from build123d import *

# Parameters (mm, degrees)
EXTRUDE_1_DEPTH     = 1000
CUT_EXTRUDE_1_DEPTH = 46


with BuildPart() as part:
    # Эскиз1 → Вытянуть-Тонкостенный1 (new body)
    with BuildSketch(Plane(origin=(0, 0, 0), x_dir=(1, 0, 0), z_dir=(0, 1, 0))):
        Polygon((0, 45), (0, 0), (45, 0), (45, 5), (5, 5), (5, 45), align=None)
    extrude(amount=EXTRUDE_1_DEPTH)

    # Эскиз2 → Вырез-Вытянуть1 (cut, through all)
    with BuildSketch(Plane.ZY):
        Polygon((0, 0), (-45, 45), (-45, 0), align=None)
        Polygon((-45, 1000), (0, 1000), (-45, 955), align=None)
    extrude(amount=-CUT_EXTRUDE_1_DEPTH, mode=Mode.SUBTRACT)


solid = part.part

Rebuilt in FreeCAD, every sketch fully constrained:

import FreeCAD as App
import Part
import Sketcher

V = App.Vector
Q = App.Units.Quantity

doc = App.newDocument("Part")
body = doc.addObject("PartDesign::Body", "Body")

# Sketch on XZ plane
sketch1 = body.newObject("Sketcher::SketchObject", "Sketch")
sketch1.AttachmentSupport = (doc.getObject("XZ_Plane"), [""])
sketch1.MapMode = "FlatFace"
sketch1.addGeometry([
    Part.LineSegment(V(0, -45, 0), V(0, 0, 0)),  # 0
    Part.LineSegment(V(0, 0, 0), V(45, 0, 0)),  # 1
    Part.LineSegment(V(45, 0, 0), V(45, -5, 0)),  # 2
    Part.LineSegment(V(45, -5, 0), V(5, -5, 0)),  # 3
    Part.LineSegment(V(5, -5, 0), V(5, -45, 0)),  # 4
    Part.LineSegment(V(5, -45, 0), V(0, -45, 0)),  # 5
], False)
sketch1.addConstraint([
    Sketcher.Constraint("Coincident", 0, 2, 1, 1),
    Sketcher.Constraint("Coincident", 1, 2, 2, 1),
    Sketcher.Constraint("Coincident", 2, 2, 3, 1),
    Sketcher.Constraint("Coincident", 3, 2, 4, 1),
    Sketcher.Constraint("Coincident", 4, 2, 5, 1),
    Sketcher.Constraint("Coincident", 5, 2, 0, 1),
    Sketcher.Constraint("Vertical", 0),
    Sketcher.Constraint("Horizontal", 1),
    Sketcher.Constraint("Vertical", 2),
    Sketcher.Constraint("Horizontal", 3),
    Sketcher.Constraint("Vertical", 4),
    Sketcher.Constraint("Horizontal", 5),
    Sketcher.Constraint("Coincident", 0, 2, -1, 1),
    Sketcher.Constraint("Equal", 1, 0),
    Sketcher.Constraint("Equal", 5, 2),
    Sketcher.Constraint("DistanceX", 1, 1, 1, 2, Q("45 mm")),
    Sketcher.Constraint("DistanceX", 3, 2, 3, 1, Q("40 mm")),
])
pad1 = body.newObject("PartDesign::Pad", "Pad")
pad1.Profile = sketch1
pad1.Length = 1000
pad1.Reversed = True

# Sketch on YZ plane
sketch2 = body.newObject("Sketcher::SketchObject", "Sketch001")
sketch2.AttachmentSupport = (doc.getObject("YZ_Plane"), [""])
sketch2.MapMode = "FlatFace"
sketch2.addGeometry([
    Part.LineSegment(V(0, 0, 0), V(45, -45, 0)),  # 0
    Part.LineSegment(V(45, -45, 0), V(0, -45, 0)),  # 1
    Part.LineSegment(V(0, -45, 0), V(0, 0, 0)),  # 2
    Part.LineSegment(V(1000, 0, 0), V(1000, -45, 0)),  # 3
    Part.LineSegment(V(1000, -45, 0), V(955, -45, 0)),  # 4
    Part.LineSegment(V(955, -45, 0), V(1000, 0, 0)),  # 5
], False)
sketch2.addConstraint([
    Sketcher.Constraint("Coincident", 0, 2, 1, 1),
    Sketcher.Constraint("Coincident", 1, 2, 2, 1),
    Sketcher.Constraint("Coincident", 2, 2, 0, 1),
    Sketcher.Constraint("Coincident", 3, 2, 4, 1),
    Sketcher.Constraint("Coincident", 4, 2, 5, 1),
    Sketcher.Constraint("Coincident", 5, 2, 3, 1),
    Sketcher.Constraint("Horizontal", 1),
    Sketcher.Constraint("Vertical", 2),
    Sketcher.Constraint("Vertical", 3),
    Sketcher.Constraint("Horizontal", 4),
    Sketcher.Constraint("Coincident", 2, 2, -1, 1),
    Sketcher.Constraint("PointOnObject", 5, 2, -1),
    Sketcher.Constraint("Perpendicular", 0, 5),
    Sketcher.Constraint("Horizontal", 1, 2, 3, 2),
    Sketcher.Constraint("Equal", 1, 4),
    Sketcher.Constraint("DistanceX", 1, 2, 1, 1, Q("45 mm")),
    Sketcher.Constraint("DistanceX", -1, 1, 3, 2, Q("1000 mm")),
])
pocket1 = body.newObject("PartDesign::Pocket", "Pocket")
pocket1.Profile = sketch2
pocket1.Type = "ThroughAll"
pocket1.Reversed = True

doc.recompute()
